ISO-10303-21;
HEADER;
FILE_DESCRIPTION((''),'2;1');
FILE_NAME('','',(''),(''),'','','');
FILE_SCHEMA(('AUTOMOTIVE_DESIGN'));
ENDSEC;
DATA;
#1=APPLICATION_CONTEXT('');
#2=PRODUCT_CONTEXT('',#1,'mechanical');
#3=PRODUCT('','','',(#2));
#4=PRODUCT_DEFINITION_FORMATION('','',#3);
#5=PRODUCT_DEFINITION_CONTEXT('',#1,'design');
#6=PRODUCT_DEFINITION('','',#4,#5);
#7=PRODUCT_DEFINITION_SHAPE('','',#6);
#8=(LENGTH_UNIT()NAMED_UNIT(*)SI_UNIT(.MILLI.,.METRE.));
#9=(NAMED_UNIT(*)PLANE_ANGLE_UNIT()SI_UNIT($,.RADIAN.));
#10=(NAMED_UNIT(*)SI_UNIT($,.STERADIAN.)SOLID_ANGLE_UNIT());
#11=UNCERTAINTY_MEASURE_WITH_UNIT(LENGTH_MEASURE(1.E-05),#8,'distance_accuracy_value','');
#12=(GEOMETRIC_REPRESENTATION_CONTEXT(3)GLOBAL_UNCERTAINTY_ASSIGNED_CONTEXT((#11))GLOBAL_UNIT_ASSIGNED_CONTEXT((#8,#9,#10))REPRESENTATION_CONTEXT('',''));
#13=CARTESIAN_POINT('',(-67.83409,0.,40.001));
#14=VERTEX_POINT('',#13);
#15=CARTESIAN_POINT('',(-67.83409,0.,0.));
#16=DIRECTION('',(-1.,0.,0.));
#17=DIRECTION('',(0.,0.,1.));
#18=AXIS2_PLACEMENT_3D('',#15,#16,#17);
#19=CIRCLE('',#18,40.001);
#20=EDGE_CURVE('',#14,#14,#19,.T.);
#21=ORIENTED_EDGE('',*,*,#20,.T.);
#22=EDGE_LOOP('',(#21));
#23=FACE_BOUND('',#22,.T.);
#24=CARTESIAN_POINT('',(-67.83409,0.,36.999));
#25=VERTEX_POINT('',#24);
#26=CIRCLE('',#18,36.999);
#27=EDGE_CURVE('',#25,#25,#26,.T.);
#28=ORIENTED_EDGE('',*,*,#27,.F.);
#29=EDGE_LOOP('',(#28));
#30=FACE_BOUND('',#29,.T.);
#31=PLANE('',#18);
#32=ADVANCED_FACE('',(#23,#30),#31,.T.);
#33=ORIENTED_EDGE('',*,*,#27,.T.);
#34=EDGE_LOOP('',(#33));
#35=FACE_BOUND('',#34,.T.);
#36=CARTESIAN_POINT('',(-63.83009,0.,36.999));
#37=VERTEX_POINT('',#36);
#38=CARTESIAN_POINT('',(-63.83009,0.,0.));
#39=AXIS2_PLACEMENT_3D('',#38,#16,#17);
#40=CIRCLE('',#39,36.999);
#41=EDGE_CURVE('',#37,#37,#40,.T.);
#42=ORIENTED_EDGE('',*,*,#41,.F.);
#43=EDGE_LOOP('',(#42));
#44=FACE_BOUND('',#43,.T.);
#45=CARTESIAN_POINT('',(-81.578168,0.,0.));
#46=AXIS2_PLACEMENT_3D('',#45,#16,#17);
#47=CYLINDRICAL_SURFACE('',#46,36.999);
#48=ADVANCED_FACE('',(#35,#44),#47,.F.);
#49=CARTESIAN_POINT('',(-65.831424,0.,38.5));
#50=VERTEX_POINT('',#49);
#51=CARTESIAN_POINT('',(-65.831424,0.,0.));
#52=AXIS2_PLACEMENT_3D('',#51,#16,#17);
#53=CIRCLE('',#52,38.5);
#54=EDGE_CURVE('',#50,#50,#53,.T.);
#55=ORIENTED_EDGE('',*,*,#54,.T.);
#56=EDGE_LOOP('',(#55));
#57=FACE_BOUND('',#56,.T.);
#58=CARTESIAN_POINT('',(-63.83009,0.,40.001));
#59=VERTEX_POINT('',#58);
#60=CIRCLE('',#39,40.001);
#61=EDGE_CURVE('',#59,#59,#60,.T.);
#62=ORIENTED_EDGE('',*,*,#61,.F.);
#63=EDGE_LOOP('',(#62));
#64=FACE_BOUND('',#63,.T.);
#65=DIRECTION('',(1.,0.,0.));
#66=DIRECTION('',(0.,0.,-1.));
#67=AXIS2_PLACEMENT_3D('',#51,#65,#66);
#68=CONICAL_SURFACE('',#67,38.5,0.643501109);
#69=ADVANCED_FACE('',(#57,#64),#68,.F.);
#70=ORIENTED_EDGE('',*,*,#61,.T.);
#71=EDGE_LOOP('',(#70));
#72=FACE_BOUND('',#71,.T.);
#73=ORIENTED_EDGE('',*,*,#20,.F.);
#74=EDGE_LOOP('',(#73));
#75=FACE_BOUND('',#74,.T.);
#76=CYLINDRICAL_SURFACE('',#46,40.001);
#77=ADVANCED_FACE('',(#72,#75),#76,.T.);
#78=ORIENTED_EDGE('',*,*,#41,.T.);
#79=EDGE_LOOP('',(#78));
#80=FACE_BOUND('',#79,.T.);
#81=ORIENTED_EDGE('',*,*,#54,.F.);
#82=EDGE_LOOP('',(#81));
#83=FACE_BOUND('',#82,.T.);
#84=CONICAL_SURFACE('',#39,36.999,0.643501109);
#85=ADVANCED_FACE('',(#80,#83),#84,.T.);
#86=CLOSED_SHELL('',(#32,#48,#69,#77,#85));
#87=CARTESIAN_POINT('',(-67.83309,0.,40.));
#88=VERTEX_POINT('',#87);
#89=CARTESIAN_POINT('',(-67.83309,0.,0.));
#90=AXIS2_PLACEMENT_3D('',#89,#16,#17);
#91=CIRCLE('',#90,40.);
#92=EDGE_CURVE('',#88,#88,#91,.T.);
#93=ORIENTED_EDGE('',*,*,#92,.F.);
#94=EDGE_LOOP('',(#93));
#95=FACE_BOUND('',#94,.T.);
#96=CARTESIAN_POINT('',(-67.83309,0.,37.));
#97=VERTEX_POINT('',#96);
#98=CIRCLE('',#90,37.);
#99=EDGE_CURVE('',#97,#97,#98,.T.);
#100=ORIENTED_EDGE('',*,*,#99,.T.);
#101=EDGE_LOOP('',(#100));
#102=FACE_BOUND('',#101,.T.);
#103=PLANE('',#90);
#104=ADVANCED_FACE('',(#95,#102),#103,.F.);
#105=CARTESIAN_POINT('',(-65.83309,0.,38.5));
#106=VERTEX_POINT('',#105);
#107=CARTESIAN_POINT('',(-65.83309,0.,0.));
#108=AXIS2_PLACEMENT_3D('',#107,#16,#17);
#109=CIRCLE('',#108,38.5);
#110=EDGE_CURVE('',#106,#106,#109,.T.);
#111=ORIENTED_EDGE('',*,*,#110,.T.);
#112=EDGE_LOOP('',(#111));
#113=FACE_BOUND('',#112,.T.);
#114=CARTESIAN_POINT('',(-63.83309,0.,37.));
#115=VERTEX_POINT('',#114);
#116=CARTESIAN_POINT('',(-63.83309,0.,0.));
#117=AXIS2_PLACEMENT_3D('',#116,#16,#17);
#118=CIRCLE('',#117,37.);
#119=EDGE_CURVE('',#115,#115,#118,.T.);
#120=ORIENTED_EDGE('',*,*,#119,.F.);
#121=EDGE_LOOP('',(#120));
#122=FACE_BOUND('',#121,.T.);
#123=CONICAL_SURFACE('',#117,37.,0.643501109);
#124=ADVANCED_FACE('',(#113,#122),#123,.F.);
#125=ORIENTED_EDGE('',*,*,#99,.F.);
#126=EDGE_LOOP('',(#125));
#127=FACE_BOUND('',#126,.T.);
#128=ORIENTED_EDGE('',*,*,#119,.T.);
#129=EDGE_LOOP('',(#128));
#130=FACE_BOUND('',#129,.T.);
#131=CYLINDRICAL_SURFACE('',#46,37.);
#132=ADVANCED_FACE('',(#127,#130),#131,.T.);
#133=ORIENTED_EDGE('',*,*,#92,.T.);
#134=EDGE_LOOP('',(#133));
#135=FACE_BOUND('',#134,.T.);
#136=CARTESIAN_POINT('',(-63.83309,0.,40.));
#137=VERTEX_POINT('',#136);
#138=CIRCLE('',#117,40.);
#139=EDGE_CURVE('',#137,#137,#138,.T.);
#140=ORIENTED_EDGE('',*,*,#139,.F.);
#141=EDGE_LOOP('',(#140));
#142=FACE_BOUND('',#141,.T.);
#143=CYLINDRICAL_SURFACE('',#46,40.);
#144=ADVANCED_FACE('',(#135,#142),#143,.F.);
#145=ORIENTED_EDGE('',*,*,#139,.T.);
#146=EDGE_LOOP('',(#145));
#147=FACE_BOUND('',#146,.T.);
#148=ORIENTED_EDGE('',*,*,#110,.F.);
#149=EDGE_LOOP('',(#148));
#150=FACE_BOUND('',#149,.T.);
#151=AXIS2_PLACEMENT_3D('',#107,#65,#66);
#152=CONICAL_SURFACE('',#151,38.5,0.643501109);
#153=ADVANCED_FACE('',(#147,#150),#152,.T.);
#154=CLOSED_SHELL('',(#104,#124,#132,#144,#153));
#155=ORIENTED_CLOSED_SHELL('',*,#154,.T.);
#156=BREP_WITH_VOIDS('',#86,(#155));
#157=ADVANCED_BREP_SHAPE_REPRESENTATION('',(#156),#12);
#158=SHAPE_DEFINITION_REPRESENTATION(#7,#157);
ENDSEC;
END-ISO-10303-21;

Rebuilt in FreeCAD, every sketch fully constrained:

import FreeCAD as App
import Part
import Sketcher

V = App.Vector
Q = App.Units.Quantity


def add_polygon(sketch, points):
    """Adds a closed chain of lines whose ends are joined by coincident constraints."""
    first, n = sketch.GeometryCount, len(points)
    for a, b in zip(points, points[1:] + points[:1]):
        sketch.addGeometry(Part.LineSegment(App.Vector(*a, 0), App.Vector(*b, 0)), False)
    for i in range(n):
        sketch.addConstraint(Sketcher.Constraint("Coincident", first + i, 2, first + (i + 1) % n, 1))

doc = App.newDocument("Part")
body = doc.addObject("PartDesign::Body", "Body")

# Sketch on XY plane
sketch1 = body.newObject("Sketcher::SketchObject", "Sketch")
sketch1.AttachmentSupport = (doc.getObject("XY_Plane"), [""])
sketch1.MapMode = "FlatFace"
add_polygon(sketch1, [(-65.8, -38.5), (-63.8, -37), (-67.8, -37), (-67.8, -40), (-63.8, -40)])  # lines 0-4
add_polygon(sketch1, [(-63.8, -37), (-65.8, -38.5), (-63.8, -40), (-67.8, -40), (-67.8, -37)])  # lines 5-9
sketch1.addConstraint([
    Sketcher.Constraint("Horizontal", 1),
    Sketcher.Constraint("Vertical", 2),
    Sketcher.Constraint("Horizontal", 3),
    Sketcher.Constraint("Horizontal", 7),
    Sketcher.Constraint("Vertical", 8),
    Sketcher.Constraint("Horizontal", 9),
    Sketcher.Constraint("Parallel", 0, 5),
    Sketcher.Constraint("Parallel", 4, 6),
    Sketcher.Constraint("Horizontal", 4, 2, 5, 2),
    Sketcher.Constraint("Vertical", 0, 2, 3, 2),
    Sketcher.Constraint("Vertical", 6, 2, 9, 2),
    Sketcher.Constraint("Equal", 0, 4),
    Sketcher.Constraint("DistanceX", 7, 2, 7, 1, Q("4 mm")),
    Sketcher.Constraint("DistanceY", 8, 1, 8, 2, Q("3 mm")),
    Sketcher.Constraint("DistanceY", 6, 2, -1, 1, Q("40 mm")),
    Sketcher.Constraint("DistanceX", 5, 2, 6, 2, Q("2 mm")),
    Sketcher.Constraint("DistanceX", 1, 2, 1, 1, Q("4.004 mm")),
    Sketcher.Constraint("DistanceY", 2, 2, 2, 1, Q("3.002 mm")),
    Sketcher.Constraint("DistanceX", 1, 2, 5, 2, Q("2.001 mm")),
    Sketcher.Constraint("DistanceX", 0, 2, -1, 1, Q("63.83009 mm")),
])
revolution = body.newObject("PartDesign::Revolution", "Revolution")
revolution.Profile = sketch1
revolution.ReferenceAxis = (sketch1, ["H_Axis"])
revolution.Angle = 360

doc.recompute()
